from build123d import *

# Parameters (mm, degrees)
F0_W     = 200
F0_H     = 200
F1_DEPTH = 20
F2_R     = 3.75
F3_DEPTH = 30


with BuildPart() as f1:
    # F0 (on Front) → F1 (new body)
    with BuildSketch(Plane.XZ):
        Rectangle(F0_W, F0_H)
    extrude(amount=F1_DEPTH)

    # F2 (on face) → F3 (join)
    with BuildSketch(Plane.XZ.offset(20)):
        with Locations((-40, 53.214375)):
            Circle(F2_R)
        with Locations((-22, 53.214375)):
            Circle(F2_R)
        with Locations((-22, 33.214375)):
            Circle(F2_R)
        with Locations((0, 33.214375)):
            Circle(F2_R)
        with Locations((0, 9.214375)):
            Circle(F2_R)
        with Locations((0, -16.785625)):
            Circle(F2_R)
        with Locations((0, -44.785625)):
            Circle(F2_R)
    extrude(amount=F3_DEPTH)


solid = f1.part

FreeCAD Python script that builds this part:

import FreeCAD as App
import Part
import Sketcher
Q = App.Units.Quantity


def add_polygon(sketch, points):
    """Adds a closed chain of lines whose ends are joined by coincident constraints."""
    first, n = sketch.GeometryCount, len(points)
    for a, b in zip(points, points[1:] + points[:1]):
        sketch.addGeometry(Part.LineSegment(App.Vector(*a, 0), App.Vector(*b, 0)), False)
    for i in range(n):
        sketch.addConstraint(Sketcher.Constraint("Coincident", first + i, 2, first + (i + 1) % n, 1))

doc = App.newDocument("Part")
body = doc.addObject("PartDesign::Body", "Body")

# Sketch on XZ plane
sketch1 = doc.addObject("Sketcher::SketchObject", "Sketch")
body.addObject(sketch1)
sketch1.AttachmentSupport = (doc.XZ_Plane, [""])
sketch1.MapMode = "FlatFace"
add_polygon(sketch1, [(-100, 100), (-100, -100), (100, -100), (100, 100)])  # lines 0-3
sketch1.addConstraint(Sketcher.Constraint("Vertical", 0))
sketch1.addConstraint(Sketcher.Constraint("Horizontal", 1))
sketch1.addConstraint(Sketcher.Constraint("Vertical", 2))
sketch1.addConstraint(Sketcher.Constraint("Horizontal", 3))
sketch1.addConstraint(Sketcher.Constraint("Symmetric", 0, 2, 2, 2, -1, 1))
sketch1.addConstraint(Sketcher.Constraint("Equal", 3, 0))
sketch1.addConstraint(Sketcher.Constraint("DistanceX", 1, 1, 1, 2, Q("200 mm")))
pad1 = doc.addObject("PartDesign::Pad", "Pad")
body.addObject(pad1)
pad1.Profile = sketch1
pad1.Length = 20

# Sketch on XZ plane
sketch2 = doc.addObject("Sketcher::SketchObject", "Sketch001")
body.addObject(sketch2)
sketch2.AttachmentSupport = (doc.XZ_Plane, [""])
sketch2.MapMode = "FlatFace"
sketch2.AttachmentOffset = App.Placement(App.Vector(0, 0, 20), App.Rotation())
sketch2.addGeometry(Part.Circle(App.Vector(-40, 53.214375, 0), App.Vector(0, 0, 1), 3.75), False)
sketch2.addGeometry(Part.Circle(App.Vector(-22, 53.214375, 0), App.Vector(0, 0, 1), 3.75), False)
sketch2.addGeometry(Part.Circle(App.Vector(-22, 33.214375, 0), App.Vector(0, 0, 1), 3.75), False)
sketch2.addGeometry(Part.Circle(App.Vector(0, 33.214375, 0), App.Vector(0, 0, 1), 3.75), False)
sketch2.addGeometry(Part.Circle(App.Vector(0, 9.214375, 0), App.Vector(0, 0, 1), 3.75), False)
sketch2.addGeometry(Part.Circle(App.Vector(0, -16.785625, 0), App.Vector(0, 0, 1), 3.75), False)
sketch2.addGeometry(Part.Circle(App.Vector(0, -44.785625, 0), App.Vector(0, 0, 1), 3.75), False)
sketch2.addConstraint(Sketcher.Constraint("Equal", 0, 1))
sketch2.addConstraint(Sketcher.Constraint("Equal", 1, 2))
sketch2.addConstraint(Sketcher.Constraint("Equal", 2, 3))
sketch2.addConstraint(Sketcher.Constraint("Equal", 3, 4))
sketch2.addConstraint(Sketcher.Constraint("Equal", 4, 5))
sketch2.addConstraint(Sketcher.Constraint("Equal", 5, 6))
sketch2.addConstraint(Sketcher.Constraint("PointOnObject", 3, 3, -2))
sketch2.addConstraint(Sketcher.Constraint("PointOnObject", 4, 3, -2))
sketch2.addConstraint(Sketcher.Constraint("PointOnObject", 5, 3, -2))
sketch2.addConstraint(Sketcher.Constraint("PointOnObject", 6, 3, -2))
sketch2.addConstraint(Sketcher.Constraint("Horizontal", 0, 3, 1, 3))
sketch2.addConstraint(Sketcher.Constraint("Horizontal", 2, 3, 3, 3))
sketch2.addConstraint(Sketcher.Constraint("Vertical", 1, 3, 2, 3))
sketch2.addConstraint(Sketcher.Constraint("Diameter", 0, Q("7.5 mm")))
sketch2.addConstraint(Sketcher.Constraint("DistanceX", 0, 3, -1, 1, Q("40 mm")))
sketch2.addConstraint(Sketcher.Constraint("DistanceX", 1, 3, -1, 1, Q("22 mm")))
sketch2.addConstraint(Sketcher.Constraint("DistanceY", 2, 3, 1, 3, Q("20 mm")))
sketch2.addConstraint(Sketcher.Constraint("DistanceY", 4, 3, 3, 3, Q("24 mm")))
sketch2.addConstraint(Sketcher.Constraint("DistanceY", 5, 3, 4, 3, Q("26 mm")))
sketch2.addConstraint(Sketcher.Constraint("DistanceY", 6, 3, 5, 3, Q("28 mm")))
sketch2.addConstraint(Sketcher.Constraint("DistanceY", -1, 1, 0, 3, Q("53.214375 mm")))
pad2 = doc.addObject("PartDesign::Pad", "Pad001")
body.addObject(pad2)
pad2.Profile = sketch2
pad2.Length = 30

doc.recompute()
